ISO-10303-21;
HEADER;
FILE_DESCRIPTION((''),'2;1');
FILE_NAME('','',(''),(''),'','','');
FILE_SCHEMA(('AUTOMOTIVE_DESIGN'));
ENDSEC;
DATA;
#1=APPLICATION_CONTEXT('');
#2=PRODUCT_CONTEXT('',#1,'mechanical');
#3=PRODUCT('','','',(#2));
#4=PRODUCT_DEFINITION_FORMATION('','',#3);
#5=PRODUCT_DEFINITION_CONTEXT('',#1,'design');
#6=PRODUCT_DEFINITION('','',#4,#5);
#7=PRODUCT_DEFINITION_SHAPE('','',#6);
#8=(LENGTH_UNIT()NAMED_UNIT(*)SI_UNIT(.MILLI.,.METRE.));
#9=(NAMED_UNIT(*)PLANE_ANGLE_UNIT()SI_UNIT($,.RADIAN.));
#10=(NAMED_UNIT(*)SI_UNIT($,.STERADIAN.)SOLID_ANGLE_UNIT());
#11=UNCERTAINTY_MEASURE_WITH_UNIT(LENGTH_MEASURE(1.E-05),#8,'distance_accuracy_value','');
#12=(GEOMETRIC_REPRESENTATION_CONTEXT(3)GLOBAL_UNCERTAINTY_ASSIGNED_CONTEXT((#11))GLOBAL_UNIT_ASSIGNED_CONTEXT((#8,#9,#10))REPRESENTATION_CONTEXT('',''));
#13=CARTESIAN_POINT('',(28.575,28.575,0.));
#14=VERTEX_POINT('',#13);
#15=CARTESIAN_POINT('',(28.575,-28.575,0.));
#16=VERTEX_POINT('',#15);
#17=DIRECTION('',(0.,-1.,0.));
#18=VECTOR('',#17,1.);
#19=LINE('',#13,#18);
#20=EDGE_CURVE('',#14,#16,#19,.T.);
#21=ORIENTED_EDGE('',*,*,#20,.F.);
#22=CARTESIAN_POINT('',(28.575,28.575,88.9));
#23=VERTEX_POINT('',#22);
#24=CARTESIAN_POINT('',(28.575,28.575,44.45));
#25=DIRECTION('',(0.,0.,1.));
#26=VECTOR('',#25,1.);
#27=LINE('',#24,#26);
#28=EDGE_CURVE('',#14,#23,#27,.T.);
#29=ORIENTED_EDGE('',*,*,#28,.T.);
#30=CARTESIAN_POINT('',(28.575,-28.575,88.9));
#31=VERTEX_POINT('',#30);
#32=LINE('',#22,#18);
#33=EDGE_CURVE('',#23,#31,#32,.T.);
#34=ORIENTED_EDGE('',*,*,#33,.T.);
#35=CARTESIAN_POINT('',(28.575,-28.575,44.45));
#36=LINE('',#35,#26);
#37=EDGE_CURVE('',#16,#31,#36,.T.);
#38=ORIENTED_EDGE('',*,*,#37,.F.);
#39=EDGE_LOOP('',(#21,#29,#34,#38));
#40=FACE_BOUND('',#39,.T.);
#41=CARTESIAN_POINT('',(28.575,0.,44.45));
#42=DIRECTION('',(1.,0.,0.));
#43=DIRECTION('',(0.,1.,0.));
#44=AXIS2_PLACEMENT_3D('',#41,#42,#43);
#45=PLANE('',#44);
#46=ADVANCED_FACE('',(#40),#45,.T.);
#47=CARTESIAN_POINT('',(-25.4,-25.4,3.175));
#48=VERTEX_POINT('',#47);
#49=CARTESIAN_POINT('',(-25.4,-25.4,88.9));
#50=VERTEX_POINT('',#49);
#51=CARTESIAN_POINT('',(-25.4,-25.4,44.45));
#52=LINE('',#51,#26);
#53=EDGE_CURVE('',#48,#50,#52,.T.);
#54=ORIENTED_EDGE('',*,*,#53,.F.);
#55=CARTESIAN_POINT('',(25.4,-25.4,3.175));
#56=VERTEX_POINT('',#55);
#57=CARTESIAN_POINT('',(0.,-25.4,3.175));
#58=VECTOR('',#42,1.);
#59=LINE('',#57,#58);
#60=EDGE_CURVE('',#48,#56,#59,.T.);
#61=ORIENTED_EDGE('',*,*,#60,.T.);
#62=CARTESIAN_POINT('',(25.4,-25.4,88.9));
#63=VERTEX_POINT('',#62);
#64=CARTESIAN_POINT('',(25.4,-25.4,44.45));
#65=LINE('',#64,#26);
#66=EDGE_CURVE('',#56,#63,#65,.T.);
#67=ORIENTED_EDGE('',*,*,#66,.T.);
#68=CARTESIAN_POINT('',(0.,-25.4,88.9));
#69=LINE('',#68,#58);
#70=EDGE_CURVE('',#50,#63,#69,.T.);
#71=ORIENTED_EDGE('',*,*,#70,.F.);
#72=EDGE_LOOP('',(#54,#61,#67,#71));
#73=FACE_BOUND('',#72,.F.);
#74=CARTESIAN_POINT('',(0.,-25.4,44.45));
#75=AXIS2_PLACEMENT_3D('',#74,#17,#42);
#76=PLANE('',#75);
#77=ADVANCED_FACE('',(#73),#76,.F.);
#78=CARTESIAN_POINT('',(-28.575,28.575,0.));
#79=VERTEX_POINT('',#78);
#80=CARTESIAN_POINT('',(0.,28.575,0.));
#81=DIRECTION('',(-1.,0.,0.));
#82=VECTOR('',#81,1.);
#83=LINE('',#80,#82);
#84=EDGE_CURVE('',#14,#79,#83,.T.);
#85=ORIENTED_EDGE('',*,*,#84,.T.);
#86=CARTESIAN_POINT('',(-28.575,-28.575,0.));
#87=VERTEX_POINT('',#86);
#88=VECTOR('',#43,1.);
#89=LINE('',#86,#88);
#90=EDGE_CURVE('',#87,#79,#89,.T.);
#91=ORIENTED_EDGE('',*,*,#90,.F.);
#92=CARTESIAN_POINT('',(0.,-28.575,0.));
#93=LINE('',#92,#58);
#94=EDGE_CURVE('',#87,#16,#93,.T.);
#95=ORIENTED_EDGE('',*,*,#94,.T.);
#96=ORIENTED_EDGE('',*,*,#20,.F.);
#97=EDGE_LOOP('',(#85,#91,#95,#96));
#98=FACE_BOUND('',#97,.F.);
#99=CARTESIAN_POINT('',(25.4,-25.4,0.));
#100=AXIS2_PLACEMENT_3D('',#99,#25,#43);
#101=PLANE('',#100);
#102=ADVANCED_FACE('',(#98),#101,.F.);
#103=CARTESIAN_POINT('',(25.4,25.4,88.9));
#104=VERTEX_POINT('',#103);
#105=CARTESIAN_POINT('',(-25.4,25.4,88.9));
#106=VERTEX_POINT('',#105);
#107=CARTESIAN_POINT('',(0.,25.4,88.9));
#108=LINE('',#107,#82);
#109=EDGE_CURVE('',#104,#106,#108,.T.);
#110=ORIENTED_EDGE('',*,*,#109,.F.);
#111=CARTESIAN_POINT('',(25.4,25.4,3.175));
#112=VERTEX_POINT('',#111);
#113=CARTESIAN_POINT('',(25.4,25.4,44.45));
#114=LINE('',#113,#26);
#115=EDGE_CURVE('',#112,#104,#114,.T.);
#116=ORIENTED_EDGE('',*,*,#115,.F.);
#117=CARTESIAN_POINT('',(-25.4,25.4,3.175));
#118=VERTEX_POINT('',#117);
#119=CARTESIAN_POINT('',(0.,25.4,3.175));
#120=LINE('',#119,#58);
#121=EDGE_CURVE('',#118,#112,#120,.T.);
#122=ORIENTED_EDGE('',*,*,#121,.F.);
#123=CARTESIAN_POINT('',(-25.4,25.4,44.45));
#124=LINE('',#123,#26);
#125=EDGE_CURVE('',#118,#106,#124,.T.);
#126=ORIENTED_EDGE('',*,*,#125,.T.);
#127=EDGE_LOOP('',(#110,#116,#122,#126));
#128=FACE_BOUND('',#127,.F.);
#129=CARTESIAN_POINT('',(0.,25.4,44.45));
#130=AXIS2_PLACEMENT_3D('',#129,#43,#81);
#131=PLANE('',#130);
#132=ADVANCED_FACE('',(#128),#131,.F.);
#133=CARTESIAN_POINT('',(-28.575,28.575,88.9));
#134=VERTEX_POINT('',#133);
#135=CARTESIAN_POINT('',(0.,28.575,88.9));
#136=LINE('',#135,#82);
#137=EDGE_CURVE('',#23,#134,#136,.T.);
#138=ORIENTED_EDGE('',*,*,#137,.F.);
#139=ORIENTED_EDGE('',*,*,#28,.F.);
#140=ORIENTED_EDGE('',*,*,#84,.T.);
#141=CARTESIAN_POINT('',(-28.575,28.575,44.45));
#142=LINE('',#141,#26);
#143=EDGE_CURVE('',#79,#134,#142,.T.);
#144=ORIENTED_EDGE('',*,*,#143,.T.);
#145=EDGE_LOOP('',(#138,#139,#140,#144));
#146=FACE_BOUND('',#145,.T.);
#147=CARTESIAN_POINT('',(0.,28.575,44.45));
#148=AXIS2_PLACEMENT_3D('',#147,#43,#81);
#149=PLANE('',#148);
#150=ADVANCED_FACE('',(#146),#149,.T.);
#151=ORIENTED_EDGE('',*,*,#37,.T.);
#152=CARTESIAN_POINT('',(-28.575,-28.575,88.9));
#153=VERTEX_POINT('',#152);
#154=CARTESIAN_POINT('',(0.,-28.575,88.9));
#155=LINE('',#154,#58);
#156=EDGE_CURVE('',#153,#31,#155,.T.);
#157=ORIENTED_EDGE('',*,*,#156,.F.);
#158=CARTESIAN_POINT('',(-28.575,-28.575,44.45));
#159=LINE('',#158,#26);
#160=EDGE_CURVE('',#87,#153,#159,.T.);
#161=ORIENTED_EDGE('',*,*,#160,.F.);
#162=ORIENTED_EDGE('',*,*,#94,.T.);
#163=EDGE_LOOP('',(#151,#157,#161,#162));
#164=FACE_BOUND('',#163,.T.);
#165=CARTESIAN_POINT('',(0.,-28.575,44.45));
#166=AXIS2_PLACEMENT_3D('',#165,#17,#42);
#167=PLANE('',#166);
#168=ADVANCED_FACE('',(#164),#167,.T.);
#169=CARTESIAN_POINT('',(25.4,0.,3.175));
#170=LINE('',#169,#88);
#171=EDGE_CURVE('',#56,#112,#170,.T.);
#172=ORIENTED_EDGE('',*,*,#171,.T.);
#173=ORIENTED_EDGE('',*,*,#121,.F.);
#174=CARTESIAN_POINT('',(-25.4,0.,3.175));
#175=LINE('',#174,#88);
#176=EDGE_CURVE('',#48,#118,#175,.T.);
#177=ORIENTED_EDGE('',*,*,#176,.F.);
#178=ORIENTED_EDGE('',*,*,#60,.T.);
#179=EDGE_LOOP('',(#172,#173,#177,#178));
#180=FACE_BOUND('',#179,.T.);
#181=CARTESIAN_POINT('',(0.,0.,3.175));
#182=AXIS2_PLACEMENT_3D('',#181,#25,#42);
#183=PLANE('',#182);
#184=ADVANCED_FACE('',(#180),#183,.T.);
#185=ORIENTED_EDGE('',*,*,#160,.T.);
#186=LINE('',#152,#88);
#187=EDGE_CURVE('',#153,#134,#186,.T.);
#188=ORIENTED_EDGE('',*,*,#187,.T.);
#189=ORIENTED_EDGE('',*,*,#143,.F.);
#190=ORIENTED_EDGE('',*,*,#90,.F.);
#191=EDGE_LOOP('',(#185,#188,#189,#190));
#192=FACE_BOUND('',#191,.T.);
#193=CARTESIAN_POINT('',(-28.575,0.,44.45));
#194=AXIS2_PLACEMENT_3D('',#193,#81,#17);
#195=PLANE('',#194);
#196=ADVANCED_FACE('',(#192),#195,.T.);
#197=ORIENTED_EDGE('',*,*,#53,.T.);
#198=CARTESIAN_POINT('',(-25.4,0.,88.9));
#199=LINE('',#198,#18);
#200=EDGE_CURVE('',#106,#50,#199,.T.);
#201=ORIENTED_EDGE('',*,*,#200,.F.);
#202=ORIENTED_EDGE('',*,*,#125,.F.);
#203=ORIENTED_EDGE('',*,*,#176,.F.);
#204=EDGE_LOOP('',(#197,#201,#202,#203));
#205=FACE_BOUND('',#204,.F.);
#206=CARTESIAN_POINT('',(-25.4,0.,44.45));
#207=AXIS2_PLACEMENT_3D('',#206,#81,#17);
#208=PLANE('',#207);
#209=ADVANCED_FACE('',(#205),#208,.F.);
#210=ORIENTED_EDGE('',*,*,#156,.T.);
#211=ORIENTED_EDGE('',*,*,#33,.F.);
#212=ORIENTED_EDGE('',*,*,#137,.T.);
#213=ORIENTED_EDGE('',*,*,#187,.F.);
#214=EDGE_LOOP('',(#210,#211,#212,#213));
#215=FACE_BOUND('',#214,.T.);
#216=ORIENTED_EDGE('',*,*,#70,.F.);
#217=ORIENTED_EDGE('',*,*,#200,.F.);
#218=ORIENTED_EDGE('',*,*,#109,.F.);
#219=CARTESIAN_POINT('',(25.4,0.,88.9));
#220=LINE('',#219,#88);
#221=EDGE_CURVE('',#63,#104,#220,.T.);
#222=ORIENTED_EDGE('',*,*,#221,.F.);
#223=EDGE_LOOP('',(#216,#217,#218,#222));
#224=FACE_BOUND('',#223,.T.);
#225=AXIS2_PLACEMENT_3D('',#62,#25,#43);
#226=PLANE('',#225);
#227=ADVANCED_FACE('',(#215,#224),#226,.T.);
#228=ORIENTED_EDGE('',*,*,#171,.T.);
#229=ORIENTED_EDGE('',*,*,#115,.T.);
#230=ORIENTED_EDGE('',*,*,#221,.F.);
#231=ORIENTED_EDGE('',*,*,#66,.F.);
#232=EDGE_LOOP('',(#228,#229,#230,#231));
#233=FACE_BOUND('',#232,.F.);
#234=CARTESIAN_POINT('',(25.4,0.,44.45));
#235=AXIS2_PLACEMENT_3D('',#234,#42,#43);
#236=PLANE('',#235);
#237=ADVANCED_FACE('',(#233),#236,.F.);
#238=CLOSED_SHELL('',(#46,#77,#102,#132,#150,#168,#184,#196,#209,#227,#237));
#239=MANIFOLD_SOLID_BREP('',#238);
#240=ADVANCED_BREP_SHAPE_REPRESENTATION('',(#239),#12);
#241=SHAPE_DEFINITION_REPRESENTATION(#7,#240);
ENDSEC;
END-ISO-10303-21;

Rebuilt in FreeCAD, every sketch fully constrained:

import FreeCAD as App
import Part
import Sketcher
Q = App.Units.Quantity


def add_polygon(sketch, points):
    """Adds a closed chain of lines whose ends are joined by coincident constraints."""
    first, n = sketch.GeometryCount, len(points)
    for a, b in zip(points, points[1:] + points[:1]):
        sketch.addGeometry(Part.LineSegment(App.Vector(*a, 0), App.Vector(*b, 0)), False)
    for i in range(n):
        sketch.addConstraint(Sketcher.Constraint("Coincident", first + i, 2, first + (i + 1) % n, 1))

doc = App.newDocument("Part")
body = doc.addObject("PartDesign::Body", "Body")

# Sketch on XY plane
sketch1 = body.newObject("Sketcher::SketchObject", "Sketch")
sketch1.AttachmentSupport = (doc.getObject("XY_Plane"), [""])
sketch1.MapMode = "FlatFace"
add_polygon(sketch1, [(-25, 25), (-25, -25), (25, -25), (25, 25)])  # lines 0-3
sketch1.addConstraint(Sketcher.Constraint("Vertical", 0))
sketch1.addConstraint(Sketcher.Constraint("Horizontal", 1))
sketch1.addConstraint(Sketcher.Constraint("Vertical", 2))
sketch1.addConstraint(Sketcher.Constraint("Horizontal", 3))
sketch1.addConstraint(Sketcher.Constraint("Symmetric", 0, 2, 2, 2, -1, 1))
sketch1.addConstraint(Sketcher.Constraint("Equal", 3, 0))
sketch1.addConstraint(Sketcher.Constraint("DistanceX", 1, 1, 1, 2, Q("2 in")))
pad1 = body.newObject("PartDesign::Pad", "Pad")
pad1.Profile = sketch1
pad1.Length = Q("0.125 in")

# Sketch on XZ plane
sketch2 = body.newObject("Sketcher::SketchObject", "Sketch001")
sketch2.AttachmentSupport = (doc.getObject("XZ_Plane"), [""])
sketch2.MapMode = "FlatFace"
sketch2.AttachmentOffset = App.Placement(App.Vector(0, 0, 1 * 25.4), App.Rotation())
add_polygon(sketch2, [(-29, 89), (-29, 0), (29, 0), (29, 89)])  # lines 0-3
sketch2.addConstraint(Sketcher.Constraint("Vertical", 0))
sketch2.addConstraint(Sketcher.Constraint("Horizontal", 1))
sketch2.addConstraint(Sketcher.Constraint("Vertical", 2))
sketch2.addConstraint(Sketcher.Constraint("Horizontal", 3))
sketch2.addConstraint(Sketcher.Constraint("Symmetric", 0, 2, 1, 2, -1, 1))
sketch2.addConstraint(Sketcher.Constraint("DistanceY", 0, 2, 0, 1, Q("3.5 in")))
sketch2.addConstraint(Sketcher.Constraint("DistanceX", 1, 1, 1, 2, Q("2.25 in")))
pad2 = body.newObject("PartDesign::Pad", "Pad001")
pad2.Profile = sketch2
pad2.Length = Q("0.125 in")

# Sketch on XZ plane
sketch3 = body.newObject("Sketcher::SketchObject", "Sketch002")
sketch3.AttachmentSupport = (doc.getObject("XZ_Plane"), [""])
sketch3.MapMode = "FlatFace"
sketch3.AttachmentOffset = App.Placement(App.Vector(0, 0, -1 * 25.4), App.Rotation())
add_polygon(sketch3, [(29, 89), (29, 0), (-29, 0), (-29, 89)])  # lines 0-3
sketch3.addConstraint(Sketcher.Constraint("Vertical", 0))
sketch3.addConstraint(Sketcher.Constraint("Horizontal", 1))
sketch3.addConstraint(Sketcher.Constraint("Vertical", 2))
sketch3.addConstraint(Sketcher.Constraint("Horizontal", 3))
sketch3.addConstraint(Sketcher.Constraint("Symmetric", 0, 2, 1, 2, -1, 1))
sketch3.addConstraint(Sketcher.Constraint("DistanceY", 0, 2, 0, 1, Q("3.5 in")))
sketch3.addConstraint(Sketcher.Constraint("DistanceX", 1, 2, 1, 1, Q("2.25 in")))
pad3 = body.newObject("PartDesign::Pad", "Pad002")
pad3.Profile = sketch3
pad3.Length = Q("0.125 in")
pad3.Reversed = True

# Sketch on YZ plane
sketch4 = body.newObject("Sketcher::SketchObject", "Sketch003")
sketch4.AttachmentSupport = (doc.getObject("YZ_Plane"), [""])
sketch4.MapMode = "FlatFace"
sketch4.AttachmentOffset = App.Placement(App.Vector(0, 0, -1 * 25.4), App.Rotation())
add_polygon(sketch4, [(25, 89), (25, 0), (-25, 0), (-25, 89)])  # lines 0-3
sketch4.addConstraint(Sketcher.Constraint("Vertical", 0))
sketch4.addConstraint(Sketcher.Constraint("Horizontal", 1))
sketch4.addConstraint(Sketcher.Constraint("Vertical", 2))
sketch4.addConstraint(Sketcher.Constraint("Horizontal", 3))
sketch4.addConstraint(Sketcher.Constraint("Symmetric", 0, 2, 1, 2, -1, 1))
sketch4.addConstraint(Sketcher.Constraint("DistanceX", 1, 2, 1, 1, Q("2 in")))
sketch4.addConstraint(Sketcher.Constraint("DistanceY", 0, 2, 0, 1, Q("3.5 in")))
pad4 = body.newObject("PartDesign::Pad", "Pad003")
pad4.Profile = sketch4
pad4.Length = Q("0.125 in")
pad4.Reversed = True

# Sketch on YZ plane
sketch5 = body.newObject("Sketcher::SketchObject", "Sketch004")
sketch5.AttachmentSupport = (doc.getObject("YZ_Plane"), [""])
sketch5.MapMode = "FlatFace"
sketch5.AttachmentOffset = App.Placement(App.Vector(0, 0, 1 * 25.4), App.Rotation())
add_polygon(sketch5, [(-25, 89), (-25, 0), (25, 0), (25, 89)])  # lines 0-3
sketch5.addConstraint(Sketcher.Constraint("Vertical", 0))
sketch5.addConstraint(Sketcher.Constraint("Horizontal", 1))
sketch5.addConstraint(Sketcher.Constraint("Vertical", 2))
sketch5.addConstraint(Sketcher.Constraint("Horizontal", 3))
sketch5.addConstraint(Sketcher.Constraint("Symmetric", 0, 2, 1, 2, -1, 1))
sketch5.addConstraint(Sketcher.Constraint("DistanceX", 1, 1, 1, 2, Q("2 in")))
sketch5.addConstraint(Sketcher.Constraint("DistanceY", 0, 2, 0, 1, Q("3.5 in")))
pad5 = body.newObject("PartDesign::Pad", "Pad004")
pad5.Profile = sketch5
pad5.Length = Q("0.125 in")

doc.recompute()
